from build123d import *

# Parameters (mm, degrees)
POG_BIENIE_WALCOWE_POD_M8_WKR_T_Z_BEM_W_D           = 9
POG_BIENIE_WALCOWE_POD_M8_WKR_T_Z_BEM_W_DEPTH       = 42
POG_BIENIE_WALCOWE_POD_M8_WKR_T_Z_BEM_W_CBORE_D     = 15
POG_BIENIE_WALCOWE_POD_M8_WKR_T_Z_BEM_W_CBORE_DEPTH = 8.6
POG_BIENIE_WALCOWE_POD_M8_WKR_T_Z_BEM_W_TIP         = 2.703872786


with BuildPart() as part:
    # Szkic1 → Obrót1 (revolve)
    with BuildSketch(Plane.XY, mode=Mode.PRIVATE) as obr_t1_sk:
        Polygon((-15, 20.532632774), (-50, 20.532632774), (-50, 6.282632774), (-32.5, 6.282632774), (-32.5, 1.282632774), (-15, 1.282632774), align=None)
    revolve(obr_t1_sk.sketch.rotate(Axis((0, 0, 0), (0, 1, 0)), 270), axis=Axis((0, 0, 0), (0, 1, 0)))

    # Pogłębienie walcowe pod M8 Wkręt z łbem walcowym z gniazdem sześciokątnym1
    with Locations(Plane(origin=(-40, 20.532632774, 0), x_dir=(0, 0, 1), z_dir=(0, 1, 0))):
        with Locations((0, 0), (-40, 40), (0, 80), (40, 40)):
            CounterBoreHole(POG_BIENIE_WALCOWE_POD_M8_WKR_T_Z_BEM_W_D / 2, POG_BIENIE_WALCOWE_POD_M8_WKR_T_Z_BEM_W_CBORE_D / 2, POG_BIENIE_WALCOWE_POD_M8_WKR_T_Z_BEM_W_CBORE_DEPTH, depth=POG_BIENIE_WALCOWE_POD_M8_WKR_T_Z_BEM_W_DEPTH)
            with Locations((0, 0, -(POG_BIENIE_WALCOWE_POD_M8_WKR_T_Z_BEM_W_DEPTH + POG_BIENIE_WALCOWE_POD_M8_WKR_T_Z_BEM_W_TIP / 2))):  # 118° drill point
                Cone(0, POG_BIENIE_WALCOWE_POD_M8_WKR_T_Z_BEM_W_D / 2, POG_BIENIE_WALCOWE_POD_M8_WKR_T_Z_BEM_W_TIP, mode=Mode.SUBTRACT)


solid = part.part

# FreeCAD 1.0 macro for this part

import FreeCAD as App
import Part
import Sketcher

V = App.Vector


def add_polygon(sketch, points):
    """Adds a closed chain of lines whose ends are joined by coincident constraints."""
    first, n = sketch.GeometryCount, len(points)
    for a, b in zip(points, points[1:] + points[:1]):
        sketch.addGeometry(Part.LineSegment(App.Vector(*a, 0), App.Vector(*b, 0)), False)
    for i in range(n):
        sketch.addConstraint(Sketcher.Constraint("Coincident", first + i, 2, first + (i + 1) % n, 1))

doc = App.newDocument("Part")
body = doc.addObject("PartDesign::Body", "Body")

# Sketch on XY plane
sketch1 = body.newObject("Sketcher::SketchObject", "Sketch")
sketch1.AttachmentSupport = (doc.getObject("XY_Plane"), [""])
sketch1.MapMode = "FlatFace"
add_polygon(sketch1, [(-15, 21), (-50, 21), (-50, 6), (-32, 6), (-32, 1), (-15, 1)])  # lines 0-5
sketch1.addConstraint([
    Sketcher.Constraint("Horizontal", 0),
    Sketcher.Constraint("Vertical", 1),
    Sketcher.Constraint("Horizontal", 2),
    Sketcher.Constraint("Vertical", 3),
    Sketcher.Constraint("Horizontal", 4),
    Sketcher.Constraint("Vertical", 5),
    Sketcher.Constraint("Equal", 2, 4),
    Sketcher.Constraint("DistanceX", 0, 2, 0, 1, 35.0),
    Sketcher.Constraint("DistanceY", 3, 2, 3, 1, 5.0),
    Sketcher.Constraint("DistanceX", 0, 2, -1, 1, 50.0),
    Sketcher.Constraint("DistanceY", 1, 2, 1, 1, 14.25),
    Sketcher.Constraint("DistanceY", -1, 1, 0, 2, 20.532633),
])
revolution = body.newObject("PartDesign::Revolution", "Revolution")
revolution.Profile = sketch1
revolution.ReferenceAxis = (sketch1, ["V_Axis"])
revolution.Angle = 360

# Sketch on XZ plane
sketch2 = body.newObject("Sketcher::SketchObject", "Sketch001")
sketch2.AttachmentSupport = (doc.getObject("XZ_Plane"), [""])
sketch2.MapMode = "FlatFace"
sketch2.AttachmentOffset = App.Placement(V(0, 0, -20.532633), App.Rotation())
sketch2.addGeometry([
    Part.Circle(V(-40, 0, 0), V(0, 0, 1), 4.5),
    Part.Circle(V(0, -40, 0), V(0, 0, 1), 4.5),
    Part.Circle(V(40, 0, 0), V(0, 0, 1), 4.5),
    Part.Circle(V(0, 40, 0), V(0, 0, 1), 4.5),
], False)
sketch2.addConstraint([
    Sketcher.Constraint("Equal", 0, 1),
    Sketcher.Constraint("Equal", 1, 2),
    Sketcher.Constraint("Equal", 2, 3),
    Sketcher.Constraint("Symmetric", 0, 3, 2, 3, -1, 1),
    Sketcher.Constraint("Symmetric", 1, 3, 3, 3, -1, 1),
    Sketcher.Constraint("PointOnObject", 0, 3, -1),
    Sketcher.Constraint("PointOnObject", 1, 3, -2),
    Sketcher.Constraint("Diameter", 0, 9.0),
    Sketcher.Constraint("DistanceX", 0, 3, -1, 1, 40.0),
    Sketcher.Constraint("DistanceY", 1, 3, -1, 1, 40.0),
])
doc.recompute()
hole = body.newObject("PartDesign::Hole", "Hole")
hole.Profile = sketch2
hole.ThreadType = "None"
hole.Diameter = 9
hole.DepthType = "Dimension"
hole.Depth = 42
hole.DrillPoint = "Angled"
hole.DrillPointAngle = 118
hole.HoleCutType = "Counterbore"
hole.HoleCutDiameter = 15
hole.HoleCutDepth = 8.6
hole.Reversed = True

doc.recompute()
